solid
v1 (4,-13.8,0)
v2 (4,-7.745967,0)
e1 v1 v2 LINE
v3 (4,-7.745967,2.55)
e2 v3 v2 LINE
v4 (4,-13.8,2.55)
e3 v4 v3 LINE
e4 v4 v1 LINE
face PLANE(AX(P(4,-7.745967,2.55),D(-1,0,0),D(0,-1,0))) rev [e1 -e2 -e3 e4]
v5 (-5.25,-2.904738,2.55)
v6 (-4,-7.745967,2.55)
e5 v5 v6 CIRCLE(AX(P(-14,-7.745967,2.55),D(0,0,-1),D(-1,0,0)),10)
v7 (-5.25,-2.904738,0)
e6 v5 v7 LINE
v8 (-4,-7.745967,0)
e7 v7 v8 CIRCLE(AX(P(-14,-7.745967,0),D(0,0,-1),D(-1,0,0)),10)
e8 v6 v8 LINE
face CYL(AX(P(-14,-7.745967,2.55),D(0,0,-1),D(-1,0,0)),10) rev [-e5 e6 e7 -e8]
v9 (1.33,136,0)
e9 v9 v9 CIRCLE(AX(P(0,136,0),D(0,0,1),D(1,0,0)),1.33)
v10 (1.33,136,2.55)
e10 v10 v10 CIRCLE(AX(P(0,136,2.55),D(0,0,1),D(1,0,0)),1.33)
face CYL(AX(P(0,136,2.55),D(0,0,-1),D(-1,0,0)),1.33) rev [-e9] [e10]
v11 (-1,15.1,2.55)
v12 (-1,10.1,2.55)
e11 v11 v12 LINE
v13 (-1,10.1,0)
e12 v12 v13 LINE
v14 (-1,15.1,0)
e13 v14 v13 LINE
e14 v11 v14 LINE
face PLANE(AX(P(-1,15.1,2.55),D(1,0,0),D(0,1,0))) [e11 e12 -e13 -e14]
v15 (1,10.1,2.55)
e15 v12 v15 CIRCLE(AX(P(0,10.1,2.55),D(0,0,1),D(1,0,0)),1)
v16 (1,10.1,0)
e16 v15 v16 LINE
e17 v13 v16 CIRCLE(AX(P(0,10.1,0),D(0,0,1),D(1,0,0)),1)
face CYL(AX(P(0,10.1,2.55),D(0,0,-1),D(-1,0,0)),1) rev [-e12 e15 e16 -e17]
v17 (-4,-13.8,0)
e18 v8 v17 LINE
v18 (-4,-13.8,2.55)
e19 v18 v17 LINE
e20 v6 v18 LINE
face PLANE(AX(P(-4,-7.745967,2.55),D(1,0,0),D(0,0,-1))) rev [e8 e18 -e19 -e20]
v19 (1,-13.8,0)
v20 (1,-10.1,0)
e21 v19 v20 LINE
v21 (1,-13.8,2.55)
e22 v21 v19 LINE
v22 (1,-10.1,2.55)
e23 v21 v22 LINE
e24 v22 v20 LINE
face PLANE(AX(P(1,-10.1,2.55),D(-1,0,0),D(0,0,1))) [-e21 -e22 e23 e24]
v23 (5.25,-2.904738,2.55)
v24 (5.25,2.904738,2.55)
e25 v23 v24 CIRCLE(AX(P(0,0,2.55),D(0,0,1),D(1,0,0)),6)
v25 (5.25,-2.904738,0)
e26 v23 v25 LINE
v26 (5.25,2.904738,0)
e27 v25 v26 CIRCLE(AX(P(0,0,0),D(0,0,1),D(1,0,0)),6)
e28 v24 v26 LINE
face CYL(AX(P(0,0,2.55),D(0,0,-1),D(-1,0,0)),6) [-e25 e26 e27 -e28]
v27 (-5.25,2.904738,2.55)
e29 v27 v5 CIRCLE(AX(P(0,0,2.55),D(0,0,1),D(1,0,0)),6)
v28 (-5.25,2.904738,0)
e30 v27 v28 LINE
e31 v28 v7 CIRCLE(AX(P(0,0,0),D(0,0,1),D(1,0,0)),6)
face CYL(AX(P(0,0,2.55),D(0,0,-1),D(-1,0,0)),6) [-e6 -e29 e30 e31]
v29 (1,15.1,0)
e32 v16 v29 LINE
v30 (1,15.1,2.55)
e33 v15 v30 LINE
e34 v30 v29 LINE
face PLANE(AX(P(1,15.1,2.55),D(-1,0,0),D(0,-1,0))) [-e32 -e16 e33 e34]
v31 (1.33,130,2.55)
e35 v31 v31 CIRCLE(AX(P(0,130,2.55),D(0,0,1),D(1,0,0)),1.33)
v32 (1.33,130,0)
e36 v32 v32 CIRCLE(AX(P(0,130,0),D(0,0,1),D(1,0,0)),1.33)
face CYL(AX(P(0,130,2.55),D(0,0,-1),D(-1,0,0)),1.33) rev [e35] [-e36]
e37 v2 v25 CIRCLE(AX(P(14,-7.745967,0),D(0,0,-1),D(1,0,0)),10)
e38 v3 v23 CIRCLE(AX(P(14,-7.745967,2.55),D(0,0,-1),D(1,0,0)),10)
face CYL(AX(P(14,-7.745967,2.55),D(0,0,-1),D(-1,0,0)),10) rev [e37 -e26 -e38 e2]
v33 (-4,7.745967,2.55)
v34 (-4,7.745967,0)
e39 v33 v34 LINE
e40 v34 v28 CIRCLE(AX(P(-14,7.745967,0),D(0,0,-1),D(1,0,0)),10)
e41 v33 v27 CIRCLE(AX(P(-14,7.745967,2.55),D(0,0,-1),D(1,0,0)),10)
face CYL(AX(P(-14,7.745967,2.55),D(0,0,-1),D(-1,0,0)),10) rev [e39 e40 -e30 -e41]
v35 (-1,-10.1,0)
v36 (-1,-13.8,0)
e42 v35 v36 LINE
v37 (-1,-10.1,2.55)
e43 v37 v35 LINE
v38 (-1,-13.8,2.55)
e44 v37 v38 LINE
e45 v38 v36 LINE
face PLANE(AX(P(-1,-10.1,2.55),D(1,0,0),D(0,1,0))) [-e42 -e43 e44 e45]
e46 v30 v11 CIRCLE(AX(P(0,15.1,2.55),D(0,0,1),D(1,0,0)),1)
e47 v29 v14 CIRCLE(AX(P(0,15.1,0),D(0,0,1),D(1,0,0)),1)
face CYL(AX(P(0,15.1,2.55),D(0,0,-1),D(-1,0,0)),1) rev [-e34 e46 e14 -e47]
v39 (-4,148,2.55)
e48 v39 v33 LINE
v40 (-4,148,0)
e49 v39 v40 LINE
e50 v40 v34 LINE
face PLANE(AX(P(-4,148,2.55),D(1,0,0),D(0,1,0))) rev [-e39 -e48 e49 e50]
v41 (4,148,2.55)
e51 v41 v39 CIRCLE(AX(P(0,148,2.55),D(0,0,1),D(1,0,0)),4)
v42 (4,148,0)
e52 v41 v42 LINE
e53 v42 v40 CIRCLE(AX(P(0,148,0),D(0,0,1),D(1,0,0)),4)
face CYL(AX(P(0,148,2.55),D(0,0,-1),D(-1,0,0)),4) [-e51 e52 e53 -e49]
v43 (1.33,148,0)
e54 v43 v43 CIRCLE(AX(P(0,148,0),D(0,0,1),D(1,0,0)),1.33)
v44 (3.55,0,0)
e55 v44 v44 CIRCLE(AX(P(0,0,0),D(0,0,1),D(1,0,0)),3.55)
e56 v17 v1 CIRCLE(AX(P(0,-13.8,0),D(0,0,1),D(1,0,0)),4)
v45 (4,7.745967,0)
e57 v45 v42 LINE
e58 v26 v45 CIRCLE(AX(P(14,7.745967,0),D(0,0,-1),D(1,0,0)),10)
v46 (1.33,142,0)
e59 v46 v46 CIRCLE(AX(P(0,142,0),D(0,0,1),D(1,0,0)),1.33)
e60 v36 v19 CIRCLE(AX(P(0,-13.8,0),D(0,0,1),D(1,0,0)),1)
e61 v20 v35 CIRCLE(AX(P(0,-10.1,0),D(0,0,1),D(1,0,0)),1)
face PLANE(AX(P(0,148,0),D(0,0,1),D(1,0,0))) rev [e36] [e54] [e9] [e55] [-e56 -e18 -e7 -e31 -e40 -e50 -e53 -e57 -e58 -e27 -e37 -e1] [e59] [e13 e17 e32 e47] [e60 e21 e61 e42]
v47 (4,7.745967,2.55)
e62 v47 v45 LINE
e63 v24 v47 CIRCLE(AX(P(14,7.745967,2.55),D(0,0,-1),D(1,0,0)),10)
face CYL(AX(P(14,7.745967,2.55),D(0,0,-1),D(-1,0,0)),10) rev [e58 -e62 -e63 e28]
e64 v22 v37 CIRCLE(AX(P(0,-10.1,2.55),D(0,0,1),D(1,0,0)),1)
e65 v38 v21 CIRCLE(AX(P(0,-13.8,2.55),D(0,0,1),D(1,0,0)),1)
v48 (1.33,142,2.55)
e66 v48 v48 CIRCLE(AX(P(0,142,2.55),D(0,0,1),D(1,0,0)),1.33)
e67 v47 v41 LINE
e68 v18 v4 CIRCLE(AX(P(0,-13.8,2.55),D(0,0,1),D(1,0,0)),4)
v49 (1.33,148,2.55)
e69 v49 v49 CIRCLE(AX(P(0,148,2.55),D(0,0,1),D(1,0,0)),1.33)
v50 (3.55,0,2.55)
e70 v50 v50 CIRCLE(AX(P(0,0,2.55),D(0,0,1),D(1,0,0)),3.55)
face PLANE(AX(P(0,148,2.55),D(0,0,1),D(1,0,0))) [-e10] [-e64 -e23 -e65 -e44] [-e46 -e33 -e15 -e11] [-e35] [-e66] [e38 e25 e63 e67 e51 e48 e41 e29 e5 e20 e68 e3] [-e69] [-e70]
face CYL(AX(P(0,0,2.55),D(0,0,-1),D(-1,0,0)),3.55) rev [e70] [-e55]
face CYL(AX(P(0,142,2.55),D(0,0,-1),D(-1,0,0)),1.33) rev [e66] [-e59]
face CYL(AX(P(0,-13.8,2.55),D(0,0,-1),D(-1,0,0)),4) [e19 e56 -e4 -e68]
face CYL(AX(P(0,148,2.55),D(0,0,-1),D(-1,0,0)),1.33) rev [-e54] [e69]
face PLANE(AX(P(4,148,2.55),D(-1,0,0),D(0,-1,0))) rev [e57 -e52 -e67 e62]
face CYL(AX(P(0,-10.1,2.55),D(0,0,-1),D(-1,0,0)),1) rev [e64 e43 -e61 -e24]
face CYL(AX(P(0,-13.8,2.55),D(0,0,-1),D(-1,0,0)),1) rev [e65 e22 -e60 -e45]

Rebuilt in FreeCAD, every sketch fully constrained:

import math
import FreeCAD as App
import Part
import Sketcher

V = App.Vector

doc = App.newDocument("Part")
body = doc.addObject("PartDesign::Body", "Body")

# Sketch on XY plane
sketch1 = doc.addObject("Sketcher::SketchObject", "Sketch")
body.addObject(sketch1)
sketch1.AttachmentSupport = (doc.XY_Plane, [""])
sketch1.MapMode = "FlatFace"
sketch1.addGeometry([
    Part.LineSegment(V(-4, 148, 0), V(-4, 7.7, 0)),  # 0
    Part.ArcOfCircle(Part.Circle(V(-14, 7.7, 0), V(0, 0, 1), 10), math.radians(-29), math.radians(0)),  # 1
    Part.ArcOfCircle(Part.Circle(V(0, 0, 0), V(0, 0, 1), 6), math.radians(151), math.radians(209)),  # 2
    Part.ArcOfCircle(Part.Circle(V(-14, -7.7, 0), V(0, 0, 1), 10), math.radians(0), math.radians(29)),  # 3
    Part.LineSegment(V(-4, -7.7, 0), V(-4, -13.8, 0)),  # 4
    Part.ArcOfCircle(Part.Circle(V(0, -13.8, 0), V(0, 0, 1), 4), math.radians(180), math.radians(360)),  # 5
    Part.LineSegment(V(4, -13.8, 0), V(4, -7.7, 0)),  # 6
    Part.ArcOfCircle(Part.Circle(V(14, -7.7, 0), V(0, 0, 1), 10), math.radians(151), math.radians(180)),  # 7
    Part.ArcOfCircle(Part.Circle(V(0, 0, 0), V(0, 0, 1), 6), math.radians(-29), math.radians(29)),  # 8
    Part.ArcOfCircle(Part.Circle(V(14, 7.7, 0), V(0, 0, 1), 10), math.radians(180), math.radians(209)),  # 9
    Part.LineSegment(V(4, 7.7, 0), V(4, 148, 0)),  # 10
    Part.ArcOfCircle(Part.Circle(V(0, 148, 0), V(0, 0, 1), 4), math.radians(0), math.radians(180)),  # 11
    Part.LineSegment(V(-1, -13.8, 0), V(-1, -10.1, 0)),  # 12
    Part.ArcOfCircle(Part.Circle(V(0, -10.1, 0), V(0, 0, 1), 1), math.radians(0), math.radians(180)),  # 13
    Part.LineSegment(V(1, -10.1, 0), V(1, -13.8, 0)),  # 14
    Part.ArcOfCircle(Part.Circle(V(0, -13.8, 0), V(0, 0, 1), 1), math.radians(180), math.radians(360)),  # 15
    Part.Circle(V(0, 0, 0), V(0, 0, 1), 3.5),  # 16
    Part.LineSegment(V(-1, 10.1, 0), V(-1, 15.1, 0)),  # 17
    Part.ArcOfCircle(Part.Circle(V(0, 15.1, 0), V(0, 0, 1), 1), math.radians(0), math.radians(180)),  # 18
    Part.LineSegment(V(1, 15.1, 0), V(1, 10.1, 0)),  # 19
    Part.ArcOfCircle(Part.Circle(V(0, 10.1, 0), V(0, 0, 1), 1), math.radians(180), math.radians(360)),  # 20
    Part.Circle(V(0, 130, 0), V(0, 0, 1), 1.3),  # 21
    Part.Circle(V(0, 136, 0), V(0, 0, 1), 1.3),  # 22
    Part.Circle(V(0, 142, 0), V(0, 0, 1), 1.3),  # 23
    Part.Circle(V(0, 148, 0), V(0, 0, 1), 1.3),  # 24
], False)
sketch1.addConstraint([
    Sketcher.Constraint("Tangent", 0, 2, 1, 2),
    Sketcher.Constraint("Tangent", 1, 1, 2, 1),
    Sketcher.Constraint("Tangent", 2, 2, 3, 2),
    Sketcher.Constraint("Tangent", 3, 1, 4, 1),
    Sketcher.Constraint("Tangent", 4, 2, 5, 1),
    Sketcher.Constraint("Tangent", 5, 2, 6, 1),
    Sketcher.Constraint("Tangent", 6, 2, 7, 2),
    Sketcher.Constraint("Tangent", 7, 1, 8, 1),
    Sketcher.Constraint("Tangent", 8, 2, 9, 2),
    Sketcher.Constraint("Tangent", 9, 1, 10, 1),
    Sketcher.Constraint("Tangent", 10, 2, 11, 1),
    Sketcher.Constraint("Tangent", 11, 2, 0, 1),
    Sketcher.Constraint("Tangent", 12, 2, 13, 2),
    Sketcher.Constraint("Tangent", 13, 1, 14, 1),
    Sketcher.Constraint("Tangent", 14, 2, 15, 2),
    Sketcher.Constraint("Tangent", 15, 1, 12, 1),
    Sketcher.Constraint("Tangent", 17, 2, 18, 2),
    Sketcher.Constraint("Tangent", 18, 1, 19, 1),
    Sketcher.Constraint("Tangent", 19, 2, 20, 2),
    Sketcher.Constraint("Tangent", 20, 1, 17, 1),
    Sketcher.Constraint("Vertical", 0),
    Sketcher.Constraint("Vertical", 4),
    Sketcher.Constraint("Vertical", 6),
    Sketcher.Constraint("Vertical", 10),
    Sketcher.Constraint("Vertical", 12),
    Sketcher.Constraint("Vertical", 14),
    Sketcher.Constraint("Vertical", 17),
    Sketcher.Constraint("Vertical", 19),
    Sketcher.Constraint("Coincident", 2, 3, -1, 1),
    Sketcher.Constraint("Coincident", 8, 3, -1, 1),
    Sketcher.Constraint("Coincident", 16, 3, -1, 1),
    Sketcher.Constraint("Coincident", 15, 3, 5, 3),
    Sketcher.Constraint("Coincident", 24, 3, 11, 3),
    Sketcher.Constraint("Equal", 1, 3),
    Sketcher.Constraint("Equal", 3, 7),
    Sketcher.Constraint("Equal", 2, 8),
    Sketcher.Constraint("Equal", 7, 9),
    Sketcher.Constraint("Equal", 5, 11),
    Sketcher.Constraint("Equal", 15, 18),
    Sketcher.Constraint("Equal", 21, 22),
    Sketcher.Constraint("Equal", 22, 23),
    Sketcher.Constraint("Equal", 23, 24),
    Sketcher.Constraint("Symmetric", 13, 3, 20, 3, -1, 1),
    Sketcher.Constraint("PointOnObject", 5, 3, -2),
    Sketcher.Constraint("PointOnObject", 11, 3, -2),
    Sketcher.Constraint("PointOnObject", 21, 3, -2),
    Sketcher.Constraint("PointOnObject", 22, 3, -2),
    Sketcher.Constraint("PointOnObject", 23, 3, -2),
    Sketcher.Constraint("Radius", 1, 10.0),
    Sketcher.Constraint("Radius", 2, 6.0),
    Sketcher.Constraint("Radius", 5, 4.0),
    Sketcher.Constraint("Radius", 13, 1.0),
    Sketcher.Constraint("Diameter", 16, 7.1),
    Sketcher.Constraint("Diameter", 21, 2.66),
    Sketcher.Constraint("DistanceY", 17, 1, 17, 2, 5.0),
    Sketcher.Constraint("DistanceY", 12, 1, 12, 2, 3.7),
    Sketcher.Constraint("DistanceY", -1, 1, 11, 3, 148.0),
    Sketcher.Constraint("DistanceY", -1, 1, 21, 3, 130.0),
    Sketcher.Constraint("DistanceY", -1, 1, 22, 3, 136.0),
    Sketcher.Constraint("DistanceY", -1, 1, 23, 3, 142.0),
    Sketcher.Constraint("DistanceY", 5, 3, -1, 1, 13.8),
])
pad1 = doc.addObject("PartDesign::Pad", "Pad")
body.addObject(pad1)
pad1.Profile = sketch1
pad1.Length = 2.55

doc.recompute()
